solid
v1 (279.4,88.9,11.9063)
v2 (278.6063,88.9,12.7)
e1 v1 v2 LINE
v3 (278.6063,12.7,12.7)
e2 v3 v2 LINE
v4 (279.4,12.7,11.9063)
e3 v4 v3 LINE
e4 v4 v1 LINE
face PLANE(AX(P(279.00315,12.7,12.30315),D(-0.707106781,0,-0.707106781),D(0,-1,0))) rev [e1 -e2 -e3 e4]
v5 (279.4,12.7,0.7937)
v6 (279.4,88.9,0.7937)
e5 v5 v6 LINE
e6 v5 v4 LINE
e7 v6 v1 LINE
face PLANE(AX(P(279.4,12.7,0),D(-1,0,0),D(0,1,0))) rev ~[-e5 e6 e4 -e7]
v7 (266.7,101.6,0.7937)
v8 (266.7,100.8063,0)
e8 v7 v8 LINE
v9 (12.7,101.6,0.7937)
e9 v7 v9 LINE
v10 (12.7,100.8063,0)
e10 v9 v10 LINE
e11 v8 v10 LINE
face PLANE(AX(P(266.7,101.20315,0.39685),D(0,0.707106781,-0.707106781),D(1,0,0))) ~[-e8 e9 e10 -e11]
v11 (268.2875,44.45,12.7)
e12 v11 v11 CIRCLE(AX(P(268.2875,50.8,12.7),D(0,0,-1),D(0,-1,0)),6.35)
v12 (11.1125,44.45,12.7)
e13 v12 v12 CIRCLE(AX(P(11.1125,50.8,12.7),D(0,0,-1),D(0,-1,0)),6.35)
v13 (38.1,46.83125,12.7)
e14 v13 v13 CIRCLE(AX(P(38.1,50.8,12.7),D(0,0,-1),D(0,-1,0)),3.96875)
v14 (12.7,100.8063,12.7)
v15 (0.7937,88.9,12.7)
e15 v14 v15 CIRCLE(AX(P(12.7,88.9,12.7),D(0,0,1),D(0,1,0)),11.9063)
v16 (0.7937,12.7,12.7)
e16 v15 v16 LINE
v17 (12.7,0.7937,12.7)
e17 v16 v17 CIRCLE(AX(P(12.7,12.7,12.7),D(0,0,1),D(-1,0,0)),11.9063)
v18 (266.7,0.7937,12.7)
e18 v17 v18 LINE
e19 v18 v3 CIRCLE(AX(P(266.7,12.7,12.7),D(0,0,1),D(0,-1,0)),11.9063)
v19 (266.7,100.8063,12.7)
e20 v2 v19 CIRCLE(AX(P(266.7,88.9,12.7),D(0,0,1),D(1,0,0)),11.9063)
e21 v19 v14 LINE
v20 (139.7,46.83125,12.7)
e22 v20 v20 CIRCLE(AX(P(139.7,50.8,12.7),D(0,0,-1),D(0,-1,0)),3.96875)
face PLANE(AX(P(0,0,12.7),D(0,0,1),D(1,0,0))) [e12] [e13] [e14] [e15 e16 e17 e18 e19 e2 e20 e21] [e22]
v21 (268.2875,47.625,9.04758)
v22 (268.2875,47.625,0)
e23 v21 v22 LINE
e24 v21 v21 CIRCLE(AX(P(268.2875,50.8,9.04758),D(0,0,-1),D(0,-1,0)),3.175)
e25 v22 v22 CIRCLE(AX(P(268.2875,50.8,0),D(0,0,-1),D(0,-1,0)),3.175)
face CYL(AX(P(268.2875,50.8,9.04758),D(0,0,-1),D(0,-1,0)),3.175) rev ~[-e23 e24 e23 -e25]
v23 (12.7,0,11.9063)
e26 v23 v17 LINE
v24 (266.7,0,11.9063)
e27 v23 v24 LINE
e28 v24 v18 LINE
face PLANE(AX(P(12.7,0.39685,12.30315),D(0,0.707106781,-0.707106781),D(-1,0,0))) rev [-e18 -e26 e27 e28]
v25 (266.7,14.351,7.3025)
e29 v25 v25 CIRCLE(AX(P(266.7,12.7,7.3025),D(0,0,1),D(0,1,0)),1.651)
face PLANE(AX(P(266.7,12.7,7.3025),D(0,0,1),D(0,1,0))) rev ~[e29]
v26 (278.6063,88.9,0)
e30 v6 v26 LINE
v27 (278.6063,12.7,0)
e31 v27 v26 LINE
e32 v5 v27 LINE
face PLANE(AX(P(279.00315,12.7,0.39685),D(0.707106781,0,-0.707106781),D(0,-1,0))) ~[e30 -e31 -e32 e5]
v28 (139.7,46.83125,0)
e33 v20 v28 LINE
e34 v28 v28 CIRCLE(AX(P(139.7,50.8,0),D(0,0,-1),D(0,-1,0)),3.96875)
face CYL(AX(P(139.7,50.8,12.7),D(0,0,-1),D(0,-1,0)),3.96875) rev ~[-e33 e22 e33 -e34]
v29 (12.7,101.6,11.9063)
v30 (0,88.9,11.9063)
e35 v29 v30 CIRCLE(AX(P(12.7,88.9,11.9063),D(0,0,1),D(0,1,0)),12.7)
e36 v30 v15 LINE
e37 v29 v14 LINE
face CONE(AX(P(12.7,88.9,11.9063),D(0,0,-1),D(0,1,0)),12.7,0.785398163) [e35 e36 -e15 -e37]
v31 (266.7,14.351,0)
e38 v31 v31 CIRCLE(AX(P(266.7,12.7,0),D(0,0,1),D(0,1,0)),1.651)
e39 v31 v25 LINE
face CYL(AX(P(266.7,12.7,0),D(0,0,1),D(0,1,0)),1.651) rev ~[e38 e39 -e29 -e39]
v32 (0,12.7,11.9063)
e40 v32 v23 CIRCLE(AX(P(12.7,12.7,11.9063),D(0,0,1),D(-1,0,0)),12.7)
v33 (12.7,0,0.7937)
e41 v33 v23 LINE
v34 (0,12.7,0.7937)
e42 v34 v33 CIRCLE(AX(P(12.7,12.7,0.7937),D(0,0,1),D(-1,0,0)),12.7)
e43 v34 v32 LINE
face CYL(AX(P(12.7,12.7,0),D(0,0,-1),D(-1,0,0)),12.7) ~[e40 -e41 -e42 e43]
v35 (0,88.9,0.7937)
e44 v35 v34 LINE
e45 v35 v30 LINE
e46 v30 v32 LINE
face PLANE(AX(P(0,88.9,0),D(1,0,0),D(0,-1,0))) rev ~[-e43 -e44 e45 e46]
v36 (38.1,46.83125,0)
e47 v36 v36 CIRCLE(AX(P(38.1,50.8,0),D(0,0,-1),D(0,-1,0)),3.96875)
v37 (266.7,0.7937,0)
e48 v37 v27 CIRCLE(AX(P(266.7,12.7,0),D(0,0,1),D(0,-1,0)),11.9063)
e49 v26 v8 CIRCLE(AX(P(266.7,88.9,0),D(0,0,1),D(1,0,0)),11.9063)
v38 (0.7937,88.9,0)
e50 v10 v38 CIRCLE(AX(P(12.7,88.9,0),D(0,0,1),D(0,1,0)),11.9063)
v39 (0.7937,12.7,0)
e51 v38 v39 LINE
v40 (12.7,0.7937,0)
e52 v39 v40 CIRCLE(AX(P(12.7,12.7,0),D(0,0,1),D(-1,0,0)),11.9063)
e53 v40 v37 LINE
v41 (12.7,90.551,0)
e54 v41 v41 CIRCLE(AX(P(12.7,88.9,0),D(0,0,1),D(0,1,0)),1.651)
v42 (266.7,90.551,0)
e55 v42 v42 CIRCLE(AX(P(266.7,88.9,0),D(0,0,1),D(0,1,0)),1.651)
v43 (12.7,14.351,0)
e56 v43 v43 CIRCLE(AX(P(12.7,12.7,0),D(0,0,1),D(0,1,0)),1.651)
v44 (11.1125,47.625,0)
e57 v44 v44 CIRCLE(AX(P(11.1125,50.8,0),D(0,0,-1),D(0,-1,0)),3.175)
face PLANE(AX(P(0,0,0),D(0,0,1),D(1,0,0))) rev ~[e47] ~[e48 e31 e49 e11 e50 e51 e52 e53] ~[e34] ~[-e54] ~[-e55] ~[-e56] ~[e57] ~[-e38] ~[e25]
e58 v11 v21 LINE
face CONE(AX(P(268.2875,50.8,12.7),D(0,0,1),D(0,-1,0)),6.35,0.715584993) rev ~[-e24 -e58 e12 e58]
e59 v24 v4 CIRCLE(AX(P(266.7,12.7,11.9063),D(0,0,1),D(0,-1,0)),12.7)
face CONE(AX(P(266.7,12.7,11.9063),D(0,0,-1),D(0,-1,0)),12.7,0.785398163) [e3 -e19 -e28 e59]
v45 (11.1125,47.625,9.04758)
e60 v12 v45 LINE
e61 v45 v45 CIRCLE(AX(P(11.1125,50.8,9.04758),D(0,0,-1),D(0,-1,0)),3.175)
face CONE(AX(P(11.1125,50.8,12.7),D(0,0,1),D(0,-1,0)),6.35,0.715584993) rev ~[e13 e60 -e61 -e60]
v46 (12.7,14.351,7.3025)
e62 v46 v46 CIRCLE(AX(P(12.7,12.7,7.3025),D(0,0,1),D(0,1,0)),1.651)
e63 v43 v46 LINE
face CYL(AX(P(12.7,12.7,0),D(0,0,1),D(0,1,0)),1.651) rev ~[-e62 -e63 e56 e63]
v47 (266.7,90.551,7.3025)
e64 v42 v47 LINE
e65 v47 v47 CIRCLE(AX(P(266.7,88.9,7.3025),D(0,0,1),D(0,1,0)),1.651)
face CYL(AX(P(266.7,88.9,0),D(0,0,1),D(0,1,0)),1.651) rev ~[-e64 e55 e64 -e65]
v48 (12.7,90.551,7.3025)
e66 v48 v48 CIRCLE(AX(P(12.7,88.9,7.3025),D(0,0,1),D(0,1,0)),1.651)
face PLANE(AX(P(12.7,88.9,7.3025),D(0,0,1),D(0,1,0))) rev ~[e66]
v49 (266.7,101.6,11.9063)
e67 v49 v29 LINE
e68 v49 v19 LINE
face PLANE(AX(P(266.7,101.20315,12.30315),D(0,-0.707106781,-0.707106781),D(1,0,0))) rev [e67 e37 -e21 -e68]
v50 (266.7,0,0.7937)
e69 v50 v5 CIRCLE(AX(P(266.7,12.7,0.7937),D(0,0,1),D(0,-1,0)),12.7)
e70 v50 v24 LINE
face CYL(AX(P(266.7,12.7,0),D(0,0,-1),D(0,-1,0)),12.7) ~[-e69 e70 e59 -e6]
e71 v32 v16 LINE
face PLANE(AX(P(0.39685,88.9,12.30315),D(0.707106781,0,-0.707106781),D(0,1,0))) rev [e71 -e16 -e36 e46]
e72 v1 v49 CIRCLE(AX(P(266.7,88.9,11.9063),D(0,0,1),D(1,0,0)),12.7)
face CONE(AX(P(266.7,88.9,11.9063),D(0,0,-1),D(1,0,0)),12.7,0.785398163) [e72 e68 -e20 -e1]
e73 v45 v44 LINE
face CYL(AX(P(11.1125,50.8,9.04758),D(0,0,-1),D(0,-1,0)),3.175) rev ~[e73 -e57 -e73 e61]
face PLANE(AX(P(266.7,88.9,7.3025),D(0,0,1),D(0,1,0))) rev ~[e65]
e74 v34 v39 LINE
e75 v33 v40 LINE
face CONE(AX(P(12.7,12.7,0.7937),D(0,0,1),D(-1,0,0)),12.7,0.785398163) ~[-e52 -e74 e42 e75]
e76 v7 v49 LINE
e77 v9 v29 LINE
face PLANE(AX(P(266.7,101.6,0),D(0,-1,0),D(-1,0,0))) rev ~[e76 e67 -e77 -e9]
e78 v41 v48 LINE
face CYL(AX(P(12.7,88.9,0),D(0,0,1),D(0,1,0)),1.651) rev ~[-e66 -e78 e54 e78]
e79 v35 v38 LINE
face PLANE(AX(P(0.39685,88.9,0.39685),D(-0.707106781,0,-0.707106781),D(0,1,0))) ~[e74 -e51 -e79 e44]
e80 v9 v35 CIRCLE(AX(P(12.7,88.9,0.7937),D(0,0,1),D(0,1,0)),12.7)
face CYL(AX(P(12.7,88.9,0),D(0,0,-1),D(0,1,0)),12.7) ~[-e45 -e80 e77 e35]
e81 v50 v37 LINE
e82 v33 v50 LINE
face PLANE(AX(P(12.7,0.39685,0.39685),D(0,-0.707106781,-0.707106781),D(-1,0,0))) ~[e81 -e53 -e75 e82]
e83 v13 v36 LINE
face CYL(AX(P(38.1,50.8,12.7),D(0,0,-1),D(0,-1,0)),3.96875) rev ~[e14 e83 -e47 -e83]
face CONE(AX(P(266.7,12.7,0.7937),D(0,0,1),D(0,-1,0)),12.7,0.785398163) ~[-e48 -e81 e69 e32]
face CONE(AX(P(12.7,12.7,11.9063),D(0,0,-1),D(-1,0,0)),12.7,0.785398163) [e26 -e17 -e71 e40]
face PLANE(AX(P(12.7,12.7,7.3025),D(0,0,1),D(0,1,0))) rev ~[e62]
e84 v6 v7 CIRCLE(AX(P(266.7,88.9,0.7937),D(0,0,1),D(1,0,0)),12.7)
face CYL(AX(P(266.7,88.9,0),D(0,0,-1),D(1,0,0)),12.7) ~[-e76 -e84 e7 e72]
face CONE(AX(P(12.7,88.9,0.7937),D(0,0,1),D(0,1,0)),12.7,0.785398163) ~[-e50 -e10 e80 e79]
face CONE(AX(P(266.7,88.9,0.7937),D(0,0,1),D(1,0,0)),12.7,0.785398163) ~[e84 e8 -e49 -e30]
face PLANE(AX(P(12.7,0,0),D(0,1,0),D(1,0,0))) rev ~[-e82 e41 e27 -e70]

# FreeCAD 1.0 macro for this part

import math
import FreeCAD as App
import Part
import Sketcher
from FreeCAD import Vector
Q = App.Units.Quantity


def edges_at(feature, points):
    """Names of the edges that pass closest to the given points."""
    edges = feature.Shape.Edges
    near = lambda p: min(range(len(edges)), key=lambda i: edges[i].distToShape(Part.Vertex(*p))[0])
    return sorted({f"Edge{near(p) + 1}" for p in points})

doc = App.newDocument("Part")
params = doc.addObject("Spreadsheet::Sheet", "Params")
for row, (alias, value) in enumerate([
    ("sketch1_radius", "0.5 in"),
    ("pad1_length", "0.5 in"),
    ("chamfer_size", "0.031248 in"),
    ("sketch2_diameter", "0.25 in"),
    ("hole_diameter", "0.25 in"),
    ("hole_csink_diameter", "0.5 in"),
    ("sketch3_diameter", "0.3125 in"),
    ("hole2_diameter", "0.3125 in"),
    ("sketch4_diameter", "0.13 in"),
    ("hole3_diameter", "0.13 in"),
    ("hole3_depth", "0.2875 in"),
], start=1):
    params.set(f"A{row}", alias)
    params.set(f"B{row}", "=" + value)
    params.setAlias(f"B{row}", alias)

body = doc.addObject("PartDesign::Body", "Body")

# Sketch on XY plane
sketch1 = body.newObject("Sketcher::SketchObject", "Sketch")
sketch1.AttachmentSupport = (doc.getObject("XY_Plane"), [""])
sketch1.MapMode = "FlatFace"
sketch1.addGeometry(Part.ArcOfCircle(Part.Circle(Vector(13, 13, 0), Vector(0, 0, 1), 13), math.radians(180), math.radians(270)), False)
sketch1.addGeometry(Part.LineSegment(Vector(13, 0, 0), Vector(267, 0, 0)), False)
sketch1.addGeometry(Part.ArcOfCircle(Part.Circle(Vector(267, 13, 0), Vector(0, 0, 1), 13), math.radians(-90), math.radians(0)), False)
sketch1.addGeometry(Part.LineSegment(Vector(279, 13, 0), Vector(279, 89, 0)), False)
sketch1.addGeometry(Part.ArcOfCircle(Part.Circle(Vector(267, 89, 0), Vector(0, 0, 1), 13), math.radians(0), math.radians(90)), False)
sketch1.addGeometry(Part.LineSegment(Vector(267, 102, 0), Vector(13, 102, 0)), False)
sketch1.addGeometry(Part.ArcOfCircle(Part.Circle(Vector(13, 89, 0), Vector(0, 0, 1), 13), math.radians(90), math.radians(180)), False)
sketch1.addGeometry(Part.LineSegment(Vector(0, 89, 0), Vector(0, 13, 0)), False)
sketch1.addConstraint(Sketcher.Constraint("Tangent", 0, 2, 1, 1))
sketch1.addConstraint(Sketcher.Constraint("Tangent", 1, 2, 2, 1))
sketch1.addConstraint(Sketcher.Constraint("Tangent", 2, 2, 3, 1))
sketch1.addConstraint(Sketcher.Constraint("Tangent", 3, 2, 4, 1))
sketch1.addConstraint(Sketcher.Constraint("Tangent", 4, 2, 5, 1))
sketch1.addConstraint(Sketcher.Constraint("Tangent", 5, 2, 6, 1))
sketch1.addConstraint(Sketcher.Constraint("Tangent", 6, 2, 7, 1))
sketch1.addConstraint(Sketcher.Constraint("Tangent", 7, 2, 0, 1))
sketch1.addConstraint(Sketcher.Constraint("Horizontal", 1))
sketch1.addConstraint(Sketcher.Constraint("Vertical", 3))
sketch1.addConstraint(Sketcher.Constraint("Horizontal", 5))
sketch1.addConstraint(Sketcher.Constraint("Vertical", 7))
sketch1.addConstraint(Sketcher.Constraint("Equal", 0, 2))
sketch1.addConstraint(Sketcher.Constraint("Equal", 2, 4))
sketch1.addConstraint(Sketcher.Constraint("Equal", 4, 6))
sketch1.addConstraint(Sketcher.Constraint("PointOnObject", 0, 2, -1))
sketch1.addConstraint(Sketcher.Constraint("PointOnObject", 6, 2, -2))
sketch1.addConstraint(Sketcher.Constraint("Radius", 0, Q("0.5 in")))
sketch1.addConstraint(Sketcher.Constraint("DistanceX", -1, 1, 2, 2, Q("11 in")))
sketch1.addConstraint(Sketcher.Constraint("DistanceY", -1, 1, 4, 2, Q("4 in")))
sketch1.setExpression("Constraints[17]", "Params.sketch1_radius")
pad1 = body.newObject("PartDesign::Pad", "Pad")
pad1.Profile = sketch1
pad1.setExpression("Length", "Params.pad1_length")
doc.recompute()

chamfer = body.newObject("PartDesign::Chamfer", "Chamfer")
chamfer.Base = (pad1, edges_at(pad1, [
    (139.7, 101.6, 12.7),
    (3.72, 97.88, 12.7),
    (0, 50.8, 12.7),
    (3.72, 3.72, 12.7),
    (139.7, 0, 12.7),
    (275.68, 3.72, 12.7),
    (279.4, 50.8, 12.7),
    (275.68, 97.88, 12.7),
    (139.7, 101.6, 0),
    (3.72, 97.88, 0),
    (0, 50.8, 0),
    (3.72, 3.72, 0),
    (139.7, 0, 0),
    (275.68, 3.72, 0),
    (279.4, 50.8, 0),
    (275.68, 97.88, 0),
]))
chamfer.setExpression("Size", "Params.chamfer_size")

# Sketch on XY plane
sketch2 = body.newObject("Sketcher::SketchObject", "Sketch001")
sketch2.AttachmentSupport = (doc.getObject("XY_Plane"), [""])
sketch2.MapMode = "FlatFace"
sketch2.AttachmentOffset = App.Placement(Vector(0, 0, 0.5 * 25.4), App.Rotation())
sketch2.addGeometry(Part.Circle(Vector(11.1, 50.8, 0), Vector(0, 0, 1), 3.2), False)
sketch2.addGeometry(Part.Circle(Vector(268.3, 50.8, 0), Vector(0, 0, 1), 3.2), False)
sketch2.addConstraint(Sketcher.Constraint("Equal", 0, 1))
sketch2.addConstraint(Sketcher.Constraint("Horizontal", 0, 3, 1, 3))
sketch2.addConstraint(Sketcher.Constraint("Diameter", 0, Q("0.25 in")))
sketch2.addConstraint(Sketcher.Constraint("DistanceY", -1, 1, 0, 3, Q("2 in")))
sketch2.addConstraint(Sketcher.Constraint("DistanceX", -1, 1, 0, 3, Q("0.4375 in")))
sketch2.addConstraint(Sketcher.Constraint("DistanceX", -1, 1, 1, 3, Q("10.5625 in")))
sketch2.setExpression("Constraints[2]", "Params.sketch2_diameter")
doc.recompute()
hole = body.newObject("PartDesign::Hole", "Hole")
hole.Profile = sketch2
hole.ThreadType = "None"
hole.setExpression("Diameter", "Params.hole_diameter")
hole.DepthType = "ThroughAll"
hole.HoleCutType = "Countersink"
hole.setExpression("HoleCutDiameter", "Params.hole_csink_diameter")
hole.HoleCutCountersinkAngle = 82

# Sketch on XY plane
sketch3 = body.newObject("Sketcher::SketchObject", "Sketch002")
sketch3.AttachmentSupport = (doc.getObject("XY_Plane"), [""])
sketch3.MapMode = "FlatFace"
sketch3.AttachmentOffset = App.Placement(Vector(0, 0, 0.5 * 25.4), App.Rotation())
sketch3.addGeometry(Part.Circle(Vector(38.1, 50.8, 0), Vector(0, 0, 1), 4), False)
sketch3.addGeometry(Part.Circle(Vector(139.7, 50.8, 0), Vector(0, 0, 1), 4), False)
sketch3.addConstraint(Sketcher.Constraint("Equal", 0, 1))
sketch3.addConstraint(Sketcher.Constraint("Horizontal", 0, 3, 1, 3))
sketch3.addConstraint(Sketcher.Constraint("Diameter", 0, Q("0.3125 in")))
sketch3.addConstraint(Sketcher.Constraint("DistanceY", -1, 1, 0, 3, Q("2 in")))
sketch3.addConstraint(Sketcher.Constraint("DistanceX", 0, 3, 1, 3, Q("4 in")))
sketch3.addConstraint(Sketcher.Constraint("DistanceX", -1, 1, 0, 3, Q("1.5 in")))
sketch3.setExpression("Constraints[2]", "Params.sketch3_diameter")
doc.recompute()
hole2 = body.newObject("PartDesign::Hole", "Hole001")
hole2.Profile = sketch3
hole2.ThreadType = "None"
hole2.setExpression("Diameter", "Params.hole2_diameter")
hole2.DepthType = "ThroughAll"

# Sketch on XY plane
sketch4 = body.newObject("Sketcher::SketchObject", "Sketch003")
sketch4.AttachmentSupport = (doc.getObject("XY_Plane"), [""])
sketch4.MapMode = "FlatFace"
sketch4.addGeometry(Part.Circle(Vector(12.7, 12.7, 0), Vector(0, 0, 1), 1.7), False)
sketch4.addGeometry(Part.Circle(Vector(12.7, 88.9, 0), Vector(0, 0, 1), 1.7), False)
sketch4.addGeometry(Part.Circle(Vector(266.7, 88.9, 0), Vector(0, 0, 1), 1.7), False)
sketch4.addGeometry(Part.Circle(Vector(266.7, 12.7, 0), Vector(0, 0, 1), 1.7), False)
sketch4.addConstraint(Sketcher.Constraint("Equal", 0, 1))
sketch4.addConstraint(Sketcher.Constraint("Equal", 1, 2))
sketch4.addConstraint(Sketcher.Constraint("Equal", 2, 3))
sketch4.addConstraint(Sketcher.Constraint("Horizontal", 1, 3, 2, 3))
sketch4.addConstraint(Sketcher.Constraint("Horizontal", 0, 3, 3, 3))
sketch4.addConstraint(Sketcher.Constraint("Vertical", 0, 3, 1, 3))
sketch4.addConstraint(Sketcher.Constraint("Vertical", 2, 3, 3, 3))
sketch4.addConstraint(Sketcher.Constraint("Diameter", 0, Q("0.13 in")))
sketch4.addConstraint(Sketcher.Constraint("DistanceY", 0, 3, 1, 3, Q("3 in")))
sketch4.addConstraint(Sketcher.Constraint("DistanceX", 1, 3, 2, 3, Q("10 in")))
sketch4.addConstraint(Sketcher.Constraint("DistanceX", -1, 1, 0, 3, Q("0.5 in")))
sketch4.addConstraint(Sketcher.Constraint("DistanceY", -1, 1, 0, 3, Q("0.5 in")))
sketch4.setExpression("Constraints[7]", "Params.sketch4_diameter")
doc.recompute()
hole3 = body.newObject("PartDesign::Hole", "Hole002")
hole3.Profile = sketch4
hole3.ThreadType = "None"
hole3.setExpression("Diameter", "Params.hole3_diameter")
hole3.DepthType = "Dimension"
hole3.setExpression("Depth", "Params.hole3_depth")
hole3.DrillPoint = "Flat"
hole3.Reversed = True

doc.recompute()
